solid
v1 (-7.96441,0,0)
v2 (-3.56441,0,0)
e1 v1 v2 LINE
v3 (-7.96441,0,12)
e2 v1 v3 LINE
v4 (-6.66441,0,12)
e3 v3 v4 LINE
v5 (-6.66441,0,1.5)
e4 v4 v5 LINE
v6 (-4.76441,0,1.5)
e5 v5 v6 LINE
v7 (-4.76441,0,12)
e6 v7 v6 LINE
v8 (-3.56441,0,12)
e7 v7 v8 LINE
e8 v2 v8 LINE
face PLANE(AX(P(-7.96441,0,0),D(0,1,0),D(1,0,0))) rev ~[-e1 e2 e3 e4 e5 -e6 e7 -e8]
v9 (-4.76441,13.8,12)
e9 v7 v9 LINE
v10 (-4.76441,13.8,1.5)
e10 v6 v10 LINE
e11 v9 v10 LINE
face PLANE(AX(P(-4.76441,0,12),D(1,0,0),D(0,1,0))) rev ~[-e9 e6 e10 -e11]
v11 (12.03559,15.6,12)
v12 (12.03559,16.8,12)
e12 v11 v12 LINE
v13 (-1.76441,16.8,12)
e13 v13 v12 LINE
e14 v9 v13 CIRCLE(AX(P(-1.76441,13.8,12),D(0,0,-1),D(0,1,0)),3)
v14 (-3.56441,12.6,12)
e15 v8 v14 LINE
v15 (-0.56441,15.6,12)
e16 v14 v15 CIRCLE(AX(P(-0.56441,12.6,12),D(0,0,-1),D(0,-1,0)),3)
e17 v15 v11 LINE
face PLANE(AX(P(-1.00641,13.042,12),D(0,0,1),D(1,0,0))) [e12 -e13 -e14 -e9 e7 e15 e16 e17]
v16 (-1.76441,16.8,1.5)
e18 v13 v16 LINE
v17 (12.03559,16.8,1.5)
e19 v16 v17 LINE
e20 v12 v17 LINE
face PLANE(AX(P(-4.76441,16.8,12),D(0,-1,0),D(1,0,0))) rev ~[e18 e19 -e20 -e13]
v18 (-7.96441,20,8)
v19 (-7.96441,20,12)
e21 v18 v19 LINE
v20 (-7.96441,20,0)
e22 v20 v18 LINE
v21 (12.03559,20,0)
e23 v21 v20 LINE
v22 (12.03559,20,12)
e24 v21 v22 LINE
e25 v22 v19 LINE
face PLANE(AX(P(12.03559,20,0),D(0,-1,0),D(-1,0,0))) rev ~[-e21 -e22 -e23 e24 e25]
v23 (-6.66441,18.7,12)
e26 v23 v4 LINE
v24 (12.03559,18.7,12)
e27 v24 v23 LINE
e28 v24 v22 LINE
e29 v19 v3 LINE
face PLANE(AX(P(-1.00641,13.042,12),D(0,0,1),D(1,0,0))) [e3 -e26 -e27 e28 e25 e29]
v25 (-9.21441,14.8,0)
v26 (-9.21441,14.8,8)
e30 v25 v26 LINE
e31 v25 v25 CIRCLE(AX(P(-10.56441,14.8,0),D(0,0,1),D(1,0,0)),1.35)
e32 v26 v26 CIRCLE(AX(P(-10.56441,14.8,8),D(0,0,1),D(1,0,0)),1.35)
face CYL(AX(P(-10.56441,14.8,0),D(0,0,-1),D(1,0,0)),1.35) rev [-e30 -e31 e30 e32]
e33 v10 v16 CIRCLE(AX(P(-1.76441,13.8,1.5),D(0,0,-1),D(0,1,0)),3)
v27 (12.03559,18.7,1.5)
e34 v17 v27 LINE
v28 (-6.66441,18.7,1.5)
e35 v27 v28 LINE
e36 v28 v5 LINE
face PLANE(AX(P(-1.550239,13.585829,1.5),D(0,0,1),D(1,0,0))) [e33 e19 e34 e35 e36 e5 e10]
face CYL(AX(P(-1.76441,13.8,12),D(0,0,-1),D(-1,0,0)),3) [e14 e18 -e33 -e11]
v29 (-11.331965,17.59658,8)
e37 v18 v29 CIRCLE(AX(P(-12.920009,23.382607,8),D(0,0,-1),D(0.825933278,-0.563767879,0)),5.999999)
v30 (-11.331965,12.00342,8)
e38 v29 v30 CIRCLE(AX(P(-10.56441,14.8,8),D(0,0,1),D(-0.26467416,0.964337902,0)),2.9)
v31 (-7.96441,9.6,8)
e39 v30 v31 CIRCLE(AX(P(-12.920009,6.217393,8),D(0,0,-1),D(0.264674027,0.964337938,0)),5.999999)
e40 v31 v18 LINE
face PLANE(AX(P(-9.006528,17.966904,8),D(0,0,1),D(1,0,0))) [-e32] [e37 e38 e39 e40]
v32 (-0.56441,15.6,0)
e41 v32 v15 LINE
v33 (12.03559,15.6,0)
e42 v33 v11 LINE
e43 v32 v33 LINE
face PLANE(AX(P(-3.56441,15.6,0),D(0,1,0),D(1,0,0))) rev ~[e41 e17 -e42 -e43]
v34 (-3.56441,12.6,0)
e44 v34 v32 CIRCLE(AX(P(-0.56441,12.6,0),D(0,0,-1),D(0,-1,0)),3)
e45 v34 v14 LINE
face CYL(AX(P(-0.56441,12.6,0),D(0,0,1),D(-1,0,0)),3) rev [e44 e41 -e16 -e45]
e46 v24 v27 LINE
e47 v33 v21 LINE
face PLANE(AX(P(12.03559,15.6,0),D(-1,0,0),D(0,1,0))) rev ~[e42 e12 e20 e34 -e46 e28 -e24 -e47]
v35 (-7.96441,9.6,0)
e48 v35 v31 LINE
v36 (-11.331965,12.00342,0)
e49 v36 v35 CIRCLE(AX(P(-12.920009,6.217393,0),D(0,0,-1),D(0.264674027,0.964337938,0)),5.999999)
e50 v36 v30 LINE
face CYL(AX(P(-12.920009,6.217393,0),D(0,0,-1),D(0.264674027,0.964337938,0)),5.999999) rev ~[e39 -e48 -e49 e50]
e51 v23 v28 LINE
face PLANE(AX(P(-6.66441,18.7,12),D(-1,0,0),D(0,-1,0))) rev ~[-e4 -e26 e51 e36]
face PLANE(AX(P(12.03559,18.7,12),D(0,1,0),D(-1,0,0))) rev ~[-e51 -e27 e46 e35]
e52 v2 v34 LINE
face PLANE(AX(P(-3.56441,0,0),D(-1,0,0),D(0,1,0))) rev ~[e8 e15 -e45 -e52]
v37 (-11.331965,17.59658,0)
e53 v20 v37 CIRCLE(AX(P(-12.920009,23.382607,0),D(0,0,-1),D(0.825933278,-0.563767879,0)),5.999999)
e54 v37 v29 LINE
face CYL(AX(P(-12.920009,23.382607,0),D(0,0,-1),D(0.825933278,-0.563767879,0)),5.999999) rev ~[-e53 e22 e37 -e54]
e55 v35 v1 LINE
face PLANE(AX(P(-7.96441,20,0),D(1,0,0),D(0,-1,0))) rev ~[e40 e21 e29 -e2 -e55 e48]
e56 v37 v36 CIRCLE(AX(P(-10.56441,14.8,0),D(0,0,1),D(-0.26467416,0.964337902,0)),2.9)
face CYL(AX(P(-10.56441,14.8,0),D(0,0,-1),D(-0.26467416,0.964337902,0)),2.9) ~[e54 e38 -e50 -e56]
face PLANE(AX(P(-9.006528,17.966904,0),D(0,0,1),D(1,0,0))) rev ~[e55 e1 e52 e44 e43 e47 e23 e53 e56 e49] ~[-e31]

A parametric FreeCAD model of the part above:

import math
import FreeCAD as App
import Part
import Sketcher


def edges_at(feature, points):
    """Names of the edges that pass closest to the given points."""
    edges = feature.Shape.Edges
    near = lambda p: min(range(len(edges)), key=lambda i: edges[i].distToShape(Part.Vertex(*p))[0])
    return sorted({f"Edge{near(p) + 1}" for p in points})

doc = App.newDocument("Part")
body = doc.addObject("PartDesign::Body", "Body")

sketch1 = body.newObject("Sketcher::SketchObject", "Sketch")
sketch1.AttachmentSupport = (doc.getObject("XY_Plane"), [""])
sketch1.MapMode = "FlatFace"
sketch1.addGeometry(Part.LineSegment(App.Vector(-7.96441, 20, 0), App.Vector(-7.96441, 0, 0)), False)
sketch1.addGeometry(Part.LineSegment(App.Vector(-7.96441, 0, 0), App.Vector(-3.56441, 0, 0)), False)
sketch1.addGeometry(Part.LineSegment(App.Vector(-3.56441, 0, 0), App.Vector(-3.56441, 15.6, 0)), False)
sketch1.addGeometry(Part.LineSegment(App.Vector(-3.56441, 15.6, 0), App.Vector(12.03559, 15.6, 0)), False)
sketch1.addGeometry(Part.LineSegment(App.Vector(12.03559, 15.6, 0), App.Vector(12.03559, 20, 0)), False)
sketch1.addGeometry(Part.LineSegment(App.Vector(12.03559, 20, 0), App.Vector(-7.96441, 20, 0)), False)
sketch1.addConstraint(Sketcher.Constraint("Coincident", 0, 2, 1, 1))
sketch1.addConstraint(Sketcher.Constraint("Coincident", 1, 2, 2, 1))
sketch1.addConstraint(Sketcher.Constraint("Coincident", 2, 2, 3, 1))
sketch1.addConstraint(Sketcher.Constraint("Coincident", 3, 2, 4, 1))
sketch1.addConstraint(Sketcher.Constraint("Coincident", 4, 2, 5, 1))
sketch1.addConstraint(Sketcher.Constraint("Coincident", 5, 2, 0, 1))
sketch1.addConstraint(Sketcher.Constraint("Vertical", 0))
sketch1.addConstraint(Sketcher.Constraint("Horizontal", 1))
sketch1.addConstraint(Sketcher.Constraint("Vertical", 2))
sketch1.addConstraint(Sketcher.Constraint("Horizontal", 3))
sketch1.addConstraint(Sketcher.Constraint("Vertical", 4))
sketch1.addConstraint(Sketcher.Constraint("Horizontal", 5))
sketch1.addConstraint(Sketcher.Constraint("PointOnObject", 0, 2, -1))
sketch1.addConstraint(Sketcher.Constraint("Equal", 5, 0))
sketch1.addConstraint(Sketcher.Constraint("Equal", 3, 2))
sketch1.addConstraint(Sketcher.Constraint("DistanceX", 5, 2, 5, 1, 20.0))
sketch1.addConstraint(Sketcher.Constraint("DistanceX", 1, 1, 1, 2, 4.4))
sketch1.addConstraint(Sketcher.Constraint("DistanceX", 0, 2, -1, 1, 7.96441))
pad1 = body.newObject("PartDesign::Pad", "Pad")
pad1.Profile = sketch1
pad1.Length = 12

sketch2 = body.newObject("Sketcher::SketchObject", "Sketch001")
sketch2.AttachmentSupport = (doc.getObject("XY_Plane"), [""])
sketch2.MapMode = "FlatFace"
sketch2.AttachmentOffset = App.Placement(App.Vector(0, 0, 12), App.Rotation())
sketch2.addGeometry(Part.LineSegment(App.Vector(-6.66441, 0, 0), App.Vector(-4.76441, 0, 0)), False)
sketch2.addGeometry(Part.LineSegment(App.Vector(-4.76441, 0, 0), App.Vector(-4.76441, 16.8, 0)), False)
sketch2.addGeometry(Part.LineSegment(App.Vector(-4.76441, 16.8, 0), App.Vector(12.03559, 16.8, 0)), False)
sketch2.addGeometry(Part.LineSegment(App.Vector(12.03559, 16.8, 0), App.Vector(12.03559, 18.7, 0)), False)
sketch2.addGeometry(Part.LineSegment(App.Vector(12.03559, 18.7, 0), App.Vector(-6.66441, 18.7, 0)), False)
sketch2.addGeometry(Part.LineSegment(App.Vector(-6.66441, 18.7, 0), App.Vector(-6.66441, 0, 0)), False)
sketch2.addConstraint(Sketcher.Constraint("Coincident", 0, 2, 1, 1))
sketch2.addConstraint(Sketcher.Constraint("Coincident", 1, 2, 2, 1))
sketch2.addConstraint(Sketcher.Constraint("Coincident", 2, 2, 3, 1))
sketch2.addConstraint(Sketcher.Constraint("Coincident", 3, 2, 4, 1))
sketch2.addConstraint(Sketcher.Constraint("Coincident", 4, 2, 5, 1))
sketch2.addConstraint(Sketcher.Constraint("Coincident", 5, 2, 0, 1))
sketch2.addConstraint(Sketcher.Constraint("Horizontal", 0))
sketch2.addConstraint(Sketcher.Constraint("Vertical", 1))
sketch2.addConstraint(Sketcher.Constraint("Horizontal", 2))
sketch2.addConstraint(Sketcher.Constraint("Vertical", 3))
sketch2.addConstraint(Sketcher.Constraint("Horizontal", 4))
sketch2.addConstraint(Sketcher.Constraint("Vertical", 5))
sketch2.addConstraint(Sketcher.Constraint("PointOnObject", 0, 2, -1))
sketch2.addConstraint(Sketcher.Constraint("Equal", 2, 1))
sketch2.addConstraint(Sketcher.Constraint("Equal", 0, 3))
sketch2.addConstraint(Sketcher.Constraint("DistanceX", 0, 1, 0, 2, 1.9))
sketch2.addConstraint(Sketcher.Constraint("DistanceX", 2, 1, 2, 2, 16.8))
sketch2.addConstraint(Sketcher.Constraint("DistanceX", 0, 2, -1, 1, 4.76441))
pocket1 = body.newObject("PartDesign::Pocket", "Pocket")
pocket1.Profile = sketch2
pocket1.Length = 10.5
doc.recompute()

fillet = body.newObject("PartDesign::Fillet", "Fillet")
fillet.Base = (pocket1, edges_at(pocket1, [(-4.764, 16.8, 6.75), (-3.564, 15.6, 6)]))
fillet.Radius = 3

sketch3 = body.newObject("Sketcher::SketchObject", "Sketch002")
sketch3.AttachmentSupport = (doc.getObject("XY_Plane"), [""])
sketch3.MapMode = "FlatFace"
sketch3.addGeometry(Part.ArcOfCircle(Part.Circle(App.Vector(-12.920009, 23.382607, 0), App.Vector(0, 0, 1), 5.999999), math.radians(-74.652416), math.radians(-34.316774)), False)
sketch3.addGeometry(Part.ArcOfCircle(Part.Circle(App.Vector(-10.56441, 14.8, 0), App.Vector(0, 0, 1), 2.9), math.radians(105.347592), math.radians(254.652408)), False)
sketch3.addGeometry(Part.ArcOfCircle(Part.Circle(App.Vector(-12.920009, 6.217393, 0), App.Vector(0, 0, 1), 5.999999), math.radians(34.316774), math.radians(74.652416)), False)
sketch3.addGeometry(Part.LineSegment(App.Vector(-7.96441, 9.6, 0), App.Vector(-7.96441, 20, 0)), False)
sketch3.addGeometry(Part.Circle(App.Vector(-10.56441, 14.8, 0), App.Vector(0, 0, 1), 1.35), False)
sketch3.addConstraint(Sketcher.Constraint("Tangent", 0, 1, 1, 1))
sketch3.addConstraint(Sketcher.Constraint("Tangent", 1, 2, 2, 2))
sketch3.addConstraint(Sketcher.Constraint("Coincident", 2, 1, 3, 1))
sketch3.addConstraint(Sketcher.Constraint("Coincident", 3, 2, 0, 2))
sketch3.addConstraint(Sketcher.Constraint("Vertical", 3))
sketch3.addConstraint(Sketcher.Constraint("Coincident", 4, 3, 1, 3))
sketch3.addConstraint(Sketcher.Constraint("Equal", 0, 2))
sketch3.addConstraint(Sketcher.Constraint("Vertical", 0, 3, 2, 3))
sketch3.addConstraint(Sketcher.Constraint("Radius", 0, 5.999999))
sketch3.addConstraint(Sketcher.Constraint("Diameter", 4, 2.7))
sketch3.addConstraint(Sketcher.Constraint("Radius", 1, 2.9))
sketch3.addConstraint(Sketcher.Constraint("DistanceY", 3, 1, 3, 2, 10.4))
sketch3.addConstraint(Sketcher.Constraint("DistanceY", -1, 1, 3, 2, 20.0))
sketch3.addConstraint(Sketcher.Constraint("DistanceX", 1, 3, 2, 1, 2.6))
sketch3.addConstraint(Sketcher.Constraint("DistanceX", 0, 3, -1, 1, 12.920009))
pad2 = body.newObject("PartDesign::Pad", "Pad001")
pad2.Profile = sketch3
pad2.Length = 8

doc.recompute()
